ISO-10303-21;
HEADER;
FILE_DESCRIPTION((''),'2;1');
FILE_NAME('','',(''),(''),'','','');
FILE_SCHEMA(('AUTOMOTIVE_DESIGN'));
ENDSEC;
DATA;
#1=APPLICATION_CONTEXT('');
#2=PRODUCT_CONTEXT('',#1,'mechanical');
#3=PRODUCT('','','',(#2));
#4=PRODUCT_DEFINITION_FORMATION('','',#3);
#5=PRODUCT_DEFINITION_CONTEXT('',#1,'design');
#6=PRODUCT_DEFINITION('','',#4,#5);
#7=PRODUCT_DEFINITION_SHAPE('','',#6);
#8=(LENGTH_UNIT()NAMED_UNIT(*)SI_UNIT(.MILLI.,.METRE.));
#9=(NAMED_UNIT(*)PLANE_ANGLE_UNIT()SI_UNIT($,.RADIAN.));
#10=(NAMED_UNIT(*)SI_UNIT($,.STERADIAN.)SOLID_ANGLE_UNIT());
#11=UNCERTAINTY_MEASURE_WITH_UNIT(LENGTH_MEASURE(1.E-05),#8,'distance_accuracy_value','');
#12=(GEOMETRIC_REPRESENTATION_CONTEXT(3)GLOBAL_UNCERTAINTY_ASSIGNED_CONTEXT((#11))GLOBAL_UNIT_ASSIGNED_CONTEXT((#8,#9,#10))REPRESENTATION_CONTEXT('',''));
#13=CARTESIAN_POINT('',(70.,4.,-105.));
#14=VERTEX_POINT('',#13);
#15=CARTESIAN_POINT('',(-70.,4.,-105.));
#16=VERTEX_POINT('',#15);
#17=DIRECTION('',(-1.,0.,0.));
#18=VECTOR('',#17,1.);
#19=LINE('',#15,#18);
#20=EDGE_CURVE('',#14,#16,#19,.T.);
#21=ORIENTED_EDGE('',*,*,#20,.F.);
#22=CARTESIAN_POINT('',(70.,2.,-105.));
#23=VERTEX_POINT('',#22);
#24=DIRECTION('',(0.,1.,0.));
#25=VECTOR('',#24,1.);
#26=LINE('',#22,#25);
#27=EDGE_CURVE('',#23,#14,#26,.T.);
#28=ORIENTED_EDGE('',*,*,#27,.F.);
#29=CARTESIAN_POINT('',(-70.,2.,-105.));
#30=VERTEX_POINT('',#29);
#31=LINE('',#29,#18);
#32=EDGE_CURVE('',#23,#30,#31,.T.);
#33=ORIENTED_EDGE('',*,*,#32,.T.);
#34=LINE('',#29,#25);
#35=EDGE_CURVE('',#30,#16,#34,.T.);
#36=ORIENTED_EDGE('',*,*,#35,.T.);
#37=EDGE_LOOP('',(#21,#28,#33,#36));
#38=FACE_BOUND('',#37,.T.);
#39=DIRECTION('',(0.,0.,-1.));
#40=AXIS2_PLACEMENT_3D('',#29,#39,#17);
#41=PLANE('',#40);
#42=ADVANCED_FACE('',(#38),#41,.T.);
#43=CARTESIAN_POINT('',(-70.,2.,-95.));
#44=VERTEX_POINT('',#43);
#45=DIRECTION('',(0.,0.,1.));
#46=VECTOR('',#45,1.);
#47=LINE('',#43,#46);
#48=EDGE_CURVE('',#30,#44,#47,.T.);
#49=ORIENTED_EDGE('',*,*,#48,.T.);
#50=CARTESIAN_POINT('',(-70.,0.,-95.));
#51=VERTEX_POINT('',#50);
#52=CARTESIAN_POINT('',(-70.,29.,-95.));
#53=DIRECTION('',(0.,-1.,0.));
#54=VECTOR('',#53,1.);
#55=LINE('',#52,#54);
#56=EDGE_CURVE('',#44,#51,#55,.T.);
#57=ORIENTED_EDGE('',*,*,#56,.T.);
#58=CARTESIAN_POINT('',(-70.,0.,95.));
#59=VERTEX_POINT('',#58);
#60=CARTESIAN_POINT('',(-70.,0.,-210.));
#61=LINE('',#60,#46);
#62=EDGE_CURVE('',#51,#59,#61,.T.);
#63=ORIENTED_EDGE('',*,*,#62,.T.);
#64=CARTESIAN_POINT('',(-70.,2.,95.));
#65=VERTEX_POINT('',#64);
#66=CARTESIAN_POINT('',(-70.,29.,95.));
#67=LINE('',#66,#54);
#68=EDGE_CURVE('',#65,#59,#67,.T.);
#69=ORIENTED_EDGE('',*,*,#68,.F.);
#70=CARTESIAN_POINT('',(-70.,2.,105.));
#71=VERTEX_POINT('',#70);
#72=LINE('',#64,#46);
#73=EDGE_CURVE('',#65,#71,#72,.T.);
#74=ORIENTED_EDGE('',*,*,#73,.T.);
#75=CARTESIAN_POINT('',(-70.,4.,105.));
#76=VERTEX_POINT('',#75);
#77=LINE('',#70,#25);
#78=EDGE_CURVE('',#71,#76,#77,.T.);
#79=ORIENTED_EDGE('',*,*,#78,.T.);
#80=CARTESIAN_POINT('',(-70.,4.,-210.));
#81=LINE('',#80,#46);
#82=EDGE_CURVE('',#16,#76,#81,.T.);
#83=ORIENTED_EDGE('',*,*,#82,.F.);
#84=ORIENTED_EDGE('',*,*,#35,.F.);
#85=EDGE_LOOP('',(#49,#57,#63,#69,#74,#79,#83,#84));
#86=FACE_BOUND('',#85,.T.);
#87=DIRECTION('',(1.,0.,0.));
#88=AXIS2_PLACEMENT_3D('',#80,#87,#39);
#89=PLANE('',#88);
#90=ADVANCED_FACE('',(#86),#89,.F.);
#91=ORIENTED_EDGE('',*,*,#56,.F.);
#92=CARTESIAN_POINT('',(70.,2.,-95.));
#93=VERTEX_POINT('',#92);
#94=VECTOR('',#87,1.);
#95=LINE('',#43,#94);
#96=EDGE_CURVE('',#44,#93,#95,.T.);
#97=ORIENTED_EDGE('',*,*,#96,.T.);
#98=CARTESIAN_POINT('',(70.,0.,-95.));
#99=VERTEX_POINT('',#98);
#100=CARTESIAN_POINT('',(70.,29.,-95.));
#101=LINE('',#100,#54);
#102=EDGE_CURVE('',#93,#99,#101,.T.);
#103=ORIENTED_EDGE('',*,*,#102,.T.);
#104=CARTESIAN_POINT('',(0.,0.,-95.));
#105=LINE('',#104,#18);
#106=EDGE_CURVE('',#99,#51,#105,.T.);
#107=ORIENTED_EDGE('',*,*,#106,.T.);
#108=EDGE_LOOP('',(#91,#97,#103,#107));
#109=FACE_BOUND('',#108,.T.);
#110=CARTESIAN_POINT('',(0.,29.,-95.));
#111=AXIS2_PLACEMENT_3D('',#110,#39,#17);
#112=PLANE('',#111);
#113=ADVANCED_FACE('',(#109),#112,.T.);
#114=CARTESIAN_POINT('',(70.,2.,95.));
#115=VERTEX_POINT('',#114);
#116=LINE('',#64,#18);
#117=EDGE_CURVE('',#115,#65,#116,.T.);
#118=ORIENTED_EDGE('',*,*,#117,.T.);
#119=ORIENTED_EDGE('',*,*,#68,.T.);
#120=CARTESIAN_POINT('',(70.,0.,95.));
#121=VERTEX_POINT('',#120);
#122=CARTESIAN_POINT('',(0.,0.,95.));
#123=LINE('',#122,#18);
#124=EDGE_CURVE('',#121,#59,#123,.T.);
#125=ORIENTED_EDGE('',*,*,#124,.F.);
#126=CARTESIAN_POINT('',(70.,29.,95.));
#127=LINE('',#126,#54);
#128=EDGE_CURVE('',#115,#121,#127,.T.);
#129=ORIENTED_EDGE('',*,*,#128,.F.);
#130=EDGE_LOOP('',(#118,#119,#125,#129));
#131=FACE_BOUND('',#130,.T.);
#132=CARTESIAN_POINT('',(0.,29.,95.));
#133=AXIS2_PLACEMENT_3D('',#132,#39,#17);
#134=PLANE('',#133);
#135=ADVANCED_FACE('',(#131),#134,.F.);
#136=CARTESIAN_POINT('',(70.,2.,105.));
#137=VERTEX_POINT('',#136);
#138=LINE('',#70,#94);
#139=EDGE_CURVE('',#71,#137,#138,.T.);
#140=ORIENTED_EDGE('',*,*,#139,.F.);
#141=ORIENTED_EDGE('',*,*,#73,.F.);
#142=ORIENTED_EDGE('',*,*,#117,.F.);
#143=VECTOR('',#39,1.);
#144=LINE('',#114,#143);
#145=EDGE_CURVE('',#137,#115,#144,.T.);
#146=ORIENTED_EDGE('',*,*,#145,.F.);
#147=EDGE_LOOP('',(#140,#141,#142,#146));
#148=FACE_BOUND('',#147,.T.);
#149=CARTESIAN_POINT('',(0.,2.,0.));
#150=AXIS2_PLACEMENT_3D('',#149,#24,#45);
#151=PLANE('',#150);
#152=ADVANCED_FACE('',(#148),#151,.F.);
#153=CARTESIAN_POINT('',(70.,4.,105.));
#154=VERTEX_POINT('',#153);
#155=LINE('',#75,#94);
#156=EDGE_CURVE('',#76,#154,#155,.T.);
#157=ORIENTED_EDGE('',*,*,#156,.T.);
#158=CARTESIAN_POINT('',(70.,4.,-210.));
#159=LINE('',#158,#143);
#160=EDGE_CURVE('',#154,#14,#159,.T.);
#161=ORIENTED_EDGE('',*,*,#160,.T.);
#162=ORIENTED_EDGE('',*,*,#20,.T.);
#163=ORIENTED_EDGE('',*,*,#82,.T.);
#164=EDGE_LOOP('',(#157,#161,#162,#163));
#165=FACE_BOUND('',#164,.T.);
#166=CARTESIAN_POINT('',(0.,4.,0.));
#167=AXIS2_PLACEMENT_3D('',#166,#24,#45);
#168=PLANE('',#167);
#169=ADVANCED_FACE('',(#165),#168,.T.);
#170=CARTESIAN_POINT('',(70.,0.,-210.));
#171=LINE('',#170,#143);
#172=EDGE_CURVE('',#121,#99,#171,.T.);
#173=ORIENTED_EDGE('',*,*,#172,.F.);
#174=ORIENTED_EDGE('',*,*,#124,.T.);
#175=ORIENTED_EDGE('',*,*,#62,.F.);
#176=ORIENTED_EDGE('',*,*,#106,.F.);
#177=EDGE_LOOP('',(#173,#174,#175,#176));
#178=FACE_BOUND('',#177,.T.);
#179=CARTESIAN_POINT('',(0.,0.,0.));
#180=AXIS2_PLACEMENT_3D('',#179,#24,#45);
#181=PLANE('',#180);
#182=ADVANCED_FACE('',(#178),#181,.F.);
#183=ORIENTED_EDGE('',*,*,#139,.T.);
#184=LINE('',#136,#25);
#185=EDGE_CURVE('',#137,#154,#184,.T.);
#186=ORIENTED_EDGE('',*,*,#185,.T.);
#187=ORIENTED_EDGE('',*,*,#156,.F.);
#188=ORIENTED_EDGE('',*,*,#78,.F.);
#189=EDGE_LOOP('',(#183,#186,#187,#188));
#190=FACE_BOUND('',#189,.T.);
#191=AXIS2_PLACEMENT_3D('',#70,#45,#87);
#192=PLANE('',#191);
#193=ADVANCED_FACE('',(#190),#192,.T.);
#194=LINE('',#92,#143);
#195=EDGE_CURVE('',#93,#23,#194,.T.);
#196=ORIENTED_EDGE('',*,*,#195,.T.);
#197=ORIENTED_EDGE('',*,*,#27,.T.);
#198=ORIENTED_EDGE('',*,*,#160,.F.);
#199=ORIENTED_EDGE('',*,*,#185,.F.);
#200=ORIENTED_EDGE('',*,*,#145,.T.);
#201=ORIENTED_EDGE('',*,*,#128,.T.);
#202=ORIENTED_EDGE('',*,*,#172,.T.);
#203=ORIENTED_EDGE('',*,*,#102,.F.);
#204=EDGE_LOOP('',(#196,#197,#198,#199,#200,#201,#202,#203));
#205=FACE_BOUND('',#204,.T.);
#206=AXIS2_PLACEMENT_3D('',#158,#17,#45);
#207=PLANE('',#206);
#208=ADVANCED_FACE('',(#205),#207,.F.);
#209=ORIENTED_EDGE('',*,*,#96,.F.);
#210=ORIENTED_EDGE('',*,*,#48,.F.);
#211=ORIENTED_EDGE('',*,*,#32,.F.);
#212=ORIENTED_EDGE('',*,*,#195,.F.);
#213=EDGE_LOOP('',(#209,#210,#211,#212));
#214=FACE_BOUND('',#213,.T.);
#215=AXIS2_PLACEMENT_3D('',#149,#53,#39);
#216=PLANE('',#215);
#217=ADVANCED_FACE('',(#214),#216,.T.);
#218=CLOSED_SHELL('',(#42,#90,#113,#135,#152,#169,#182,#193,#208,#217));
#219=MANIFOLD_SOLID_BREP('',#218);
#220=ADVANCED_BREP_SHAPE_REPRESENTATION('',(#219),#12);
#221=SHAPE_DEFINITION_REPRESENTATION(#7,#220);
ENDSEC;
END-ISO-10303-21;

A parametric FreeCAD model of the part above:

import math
import FreeCAD as App
import Part
import Sketcher
from FreeCAD import Vector


def add_polygon(sketch, points):
    """Adds a closed chain of lines whose ends are joined by coincident constraints."""
    first, n = sketch.GeometryCount, len(points)
    for a, b in zip(points, points[1:] + points[:1]):
        sketch.addGeometry(Part.LineSegment(App.Vector(*a, 0), App.Vector(*b, 0)), False)
    for i in range(n):
        sketch.addConstraint(Sketcher.Constraint("Coincident", first + i, 2, first + (i + 1) % n, 1))

doc = App.newDocument("Part")
params = doc.addObject("Spreadsheet::Sheet", "Params")
for row, (alias, value) in enumerate([
    ("sketch1_width", "140 mm"),
    ("sketch1_height", "420 mm"),
    ("pad1_length", "4 mm"),
    ("sketch2_radius", "43.5 mm"),
    ("sketch2_radius2", "37.5 mm"),
    ("sketch2_height", "20 mm"),
    ("pad2_length", "25 mm"),
    ("sketch3_width", "10.25 mm"),
    ("sketch3_height", "80.25 mm"),
    ("pocket1_length", "25.4 mm"),
    ("sketch4_width", "130 mm"),
    ("sketch4_height", "10 mm"),
    ("pocket2_length", "2.45 mm"),
    ("sketch5_width", "140 mm"),
    ("sketch5_height", "115 mm"),
    ("sketch5_width2", "10.25 mm"),
    ("sketch5_height2", "80.25 mm"),
    ("sketch6_width", "140 mm"),
    ("sketch6_height", "10 mm"),
    ("pad3_length", "2 mm"),
], start=1):
    params.set(f"A{row}", alias)
    params.set(f"B{row}", "=" + value)
    params.setAlias(f"B{row}", alias)

body = doc.addObject("PartDesign::Body", "Body")

# Sketch on XZ plane
sketch1 = doc.addObject("Sketcher::SketchObject", "Sketch")
body.addObject(sketch1)
sketch1.AttachmentSupport = (doc.XZ_Plane, [""])
sketch1.MapMode = "FlatFace"
add_polygon(sketch1, [(-70, -210), (-70, 210), (70, 210), (70, -210)])  # lines 0-3
sketch1.addConstraint([
    Sketcher.Constraint("Vertical", 0),
    Sketcher.Constraint("Horizontal", 1),
    Sketcher.Constraint("Vertical", 2),
    Sketcher.Constraint("Horizontal", 3),
    Sketcher.Constraint("Symmetric", 0, 2, 2, 2, -1, 1),
    Sketcher.Constraint("DistanceX", 1, 1, 1, 2, 140.0),
    Sketcher.Constraint("DistanceY", 0, 1, 0, 2, 420.0),
])
sketch1.setExpression("Constraints[9]", "Params.sketch1_width")
sketch1.setExpression("Constraints[10]", "Params.sketch1_height")
pad1 = doc.addObject("PartDesign::Pad", "Pad")
body.addObject(pad1)
pad1.Profile = sketch1
pad1.setExpression("Length", "Params.pad1_length")
pad1.Reversed = True

# Sketch on XZ plane
sketch2 = doc.addObject("Sketcher::SketchObject", "Sketch001")
body.addObject(sketch2)
sketch2.AttachmentSupport = (doc.XZ_Plane, [""])
sketch2.MapMode = "FlatFace"
sketch2.AttachmentOffset = App.Placement(Vector(0, 0, -4), App.Rotation())
sketch2.addGeometry([
    Part.LineSegment(Vector(-38, 165, 0), Vector(-38, 145, 0)),  # 0
    Part.LineSegment(Vector(-38, 145, 0), Vector(-44, 145, 0)),  # 1
    Part.LineSegment(Vector(-44, 145, 0), Vector(-44, 165, 0)),  # 2
    Part.ArcOfCircle(Part.Circle(Vector(0, 165, 0), Vector(0, 0, 1), 44), math.radians(0), math.radians(180)),  # 3
    Part.LineSegment(Vector(44, 165, 0), Vector(44, 145, 0)),  # 4
    Part.LineSegment(Vector(44, 145, 0), Vector(38, 145, 0)),  # 5
    Part.LineSegment(Vector(38, 145, 0), Vector(38, 165, 0)),  # 6
    Part.ArcOfCircle(Part.Circle(Vector(0, 165, 0), Vector(0, 0, 1), 38), math.radians(0), math.radians(180)),  # 7
], False)
sketch2.addConstraint([
    Sketcher.Constraint("Coincident", 0, 2, 1, 1),
    Sketcher.Constraint("Coincident", 1, 2, 2, 1),
    Sketcher.Constraint("Tangent", 2, 2, 3, 2),
    Sketcher.Constraint("Tangent", 3, 1, 4, 1),
    Sketcher.Constraint("Coincident", 4, 2, 5, 1),
    Sketcher.Constraint("Coincident", 5, 2, 6, 1),
    Sketcher.Constraint("Tangent", 6, 2, 7, 1),
    Sketcher.Constraint("Tangent", 7, 2, 0, 1),
    Sketcher.Constraint("Vertical", 0),
    Sketcher.Constraint("Horizontal", 1),
    Sketcher.Constraint("Vertical", 2),
    Sketcher.Constraint("Vertical", 4),
    Sketcher.Constraint("Horizontal", 5),
    Sketcher.Constraint("Vertical", 6),
    Sketcher.Constraint("Coincident", 7, 3, 3, 3),
    Sketcher.Constraint("Symmetric", 1, 2, 4, 2, -2),
    Sketcher.Constraint("Radius", 3, 43.5),
    Sketcher.Constraint("Radius", 7, 37.5),
    Sketcher.Constraint("DistanceY", 0, 2, 0, 1, 20.0),
    Sketcher.Constraint("DistanceY", -1, 1, 3, 3, 165.0),
])
sketch2.setExpression("Constraints[16]", "Params.sketch2_radius")
sketch2.setExpression("Constraints[17]", "Params.sketch2_radius2")
sketch2.setExpression("Constraints[18]", "Params.sketch2_height")
pad2 = doc.addObject("PartDesign::Pad", "Pad001")
body.addObject(pad2)
pad2.Profile = sketch2
pad2.setExpression("Length", "Params.pad2_length")
pad2.Reversed = True

# Sketch on XZ plane
sketch3 = doc.addObject("Sketcher::SketchObject", "Sketch002")
body.addObject(sketch3)
sketch3.AttachmentSupport = (doc.XZ_Plane, [""])
sketch3.MapMode = "FlatFace"
sketch3.AttachmentOffset = App.Placement(Vector(0, 0, -4), App.Rotation())
add_polygon(sketch3, [(-65, -180), (-65, -100), (-55, -100), (-55, -180)])  # lines 0-3
add_polygon(sketch3, [(55, -180), (55, -100), (65, -100), (65, -180)])  # lines 4-7
sketch3.addConstraint([
    Sketcher.Constraint("Vertical", 0),
    Sketcher.Constraint("Horizontal", 1),
    Sketcher.Constraint("Vertical", 2),
    Sketcher.Constraint("Horizontal", 3),
    Sketcher.Constraint("Vertical", 4),
    Sketcher.Constraint("Horizontal", 5),
    Sketcher.Constraint("Vertical", 6),
    Sketcher.Constraint("Horizontal", 7),
    Sketcher.Constraint("Symmetric", 1, 2, 4, 2, -2),
    Sketcher.Constraint("Symmetric", 3, 2, 6, 2, -2),
    Sketcher.Constraint("DistanceX", 0, 2, -1, 1, 65.0),
    Sketcher.Constraint("DistanceY", 2, 2, -1, 1, 180.0),
    Sketcher.Constraint("DistanceX", 1, 1, 1, 2, 10.25),
    Sketcher.Constraint("DistanceY", 0, 1, 0, 2, 80.25),
])
sketch3.setExpression("Constraints[20]", "Params.sketch3_width")
sketch3.setExpression("Constraints[21]", "Params.sketch3_height")
pocket1 = doc.addObject("PartDesign::Pocket", "Pocket")
body.addObject(pocket1)
pocket1.Profile = sketch3
pocket1.setExpression("Length", "Params.pocket1_length")
pocket1.Reversed = True

# Sketch on XZ plane
sketch4 = doc.addObject("Sketcher::SketchObject", "Sketch003")
body.addObject(sketch4)
sketch4.AttachmentSupport = (doc.XZ_Plane, [""])
sketch4.MapMode = "FlatFace"
sketch4.AttachmentOffset = App.Placement(Vector(0, 0, -4), App.Rotation())
add_polygon(sketch4, [(-65, -205), (-65, -195), (65, -195), (65, -205)])  # lines 0-3
sketch4.addConstraint([
    Sketcher.Constraint("Vertical", 0),
    Sketcher.Constraint("Horizontal", 1),
    Sketcher.Constraint("Vertical", 2),
    Sketcher.Constraint("Horizontal", 3),
    Sketcher.Constraint("DistanceX", 1, 1, 1, 2, 130.0),
    Sketcher.Constraint("DistanceY", 0, 1, 0, 2, 10.0),
    Sketcher.Constraint("DistanceX", 0, 2, -1, 1, 65.0),
    Sketcher.Constraint("DistanceY", 0, 2, -1, 1, 195.0),
])
sketch4.setExpression("Constraints[8]", "Params.sketch4_width")
sketch4.setExpression("Constraints[9]", "Params.sketch4_height")
pocket2 = doc.addObject("PartDesign::Pocket", "Pocket001")
body.addObject(pocket2)
pocket2.Profile = sketch4
pocket2.setExpression("Length", "Params.pocket2_length")
pocket2.Reversed = True

# Sketch on XZ plane
sketch5 = doc.addObject("Sketcher::SketchObject", "Sketch004")
body.addObject(sketch5)
sketch5.AttachmentSupport = (doc.XZ_Plane, [""])
sketch5.MapMode = "FlatFace"
add_polygon(sketch5, [(-70, 210), (-70, 95), (70, 95), (70, 210)])  # lines 0-3
add_polygon(sketch5, [(-70, -95), (-70, -210), (70, -210), (70, -95)])  # lines 4-7
add_polygon(sketch5, [(-55, -180), (-65, -180), (-65, -100), (-55, -100)])  # lines 8-11
add_polygon(sketch5, [(65, -180), (55, -180), (55, -100), (65, -100)])  # lines 12-15
sketch5.addConstraint([
    Sketcher.Constraint("Vertical", 0),
    Sketcher.Constraint("Horizontal", 1),
    Sketcher.Constraint("Vertical", 2),
    Sketcher.Constraint("Horizontal", 3),
    Sketcher.Constraint("Vertical", 4),
    Sketcher.Constraint("Horizontal", 5),
    Sketcher.Constraint("Vertical", 6),
    Sketcher.Constraint("Horizontal", 7),
    Sketcher.Constraint("Horizontal", 8),
    Sketcher.Constraint("Vertical", 9),
    Sketcher.Constraint("Horizontal", 10),
    Sketcher.Constraint("Vertical", 11),
    Sketcher.Constraint("Horizontal", 12),
    Sketcher.Constraint("Vertical", 13),
    Sketcher.Constraint("Horizontal", 14),
    Sketcher.Constraint("Vertical", 15),
    Sketcher.Constraint("Symmetric", 2, 2, 4, 2, -1, 1),
    Sketcher.Constraint("Symmetric", 0, 2, 6, 2, -1, 1),
    Sketcher.Constraint("Symmetric", 11, 2, 12, 2, -2),
    Sketcher.Constraint("Symmetric", 9, 2, 14, 2, -2),
    Sketcher.Constraint("Vertical", 3, 2, 4, 2),
    Sketcher.Constraint("DistanceX", 1, 1, 1, 2, 140.0),
    Sketcher.Constraint("DistanceY", 0, 2, 0, 1, 115.0),
    Sketcher.Constraint("DistanceY", -1, 1, 0, 2, 95.0),
    Sketcher.Constraint("DistanceX", 8, 2, -1, 1, 65.0),
    Sketcher.Constraint("DistanceY", 8, 2, -1, 1, 180.0),
    Sketcher.Constraint("DistanceX", 8, 2, 8, 1, 10.25),
    Sketcher.Constraint("DistanceY", 9, 1, 9, 2, 80.25),
])
sketch5.setExpression("Constraints[37]", "Params.sketch5_width")
sketch5.setExpression("Constraints[38]", "Params.sketch5_height")
sketch5.setExpression("Constraints[42]", "Params.sketch5_width2")
sketch5.setExpression("Constraints[43]", "Params.sketch5_height2")
pocket3 = doc.addObject("PartDesign::Pocket", "Pocket002")
body.addObject(pocket3)
pocket3.Profile = sketch5
pocket3.Type = "ThroughAll"
pocket3.Midplane = True

# Sketch on XZ plane
sketch6 = doc.addObject("Sketcher::SketchObject", "Sketch005")
body.addObject(sketch6)
sketch6.AttachmentSupport = (doc.XZ_Plane, [""])
sketch6.MapMode = "FlatFace"
sketch6.AttachmentOffset = App.Placement(Vector(0, 0, -4), App.Rotation())
add_polygon(sketch6, [(-70, -105), (-70, -95), (70, -95), (70, -105)])  # lines 0-3
add_polygon(sketch6, [(-70, 95), (-70, 105), (70, 105), (70, 95)])  # lines 4-7
sketch6.addConstraint([
    Sketcher.Constraint("Vertical", 0),
    Sketcher.Constraint("Horizontal", 1),
    Sketcher.Constraint("Vertical", 2),
    Sketcher.Constraint("Horizontal", 3),
    Sketcher.Constraint("Vertical", 4),
    Sketcher.Constraint("Horizontal", 5),
    Sketcher.Constraint("Vertical", 6),
    Sketcher.Constraint("Horizontal", 7),
    Sketcher.Constraint("Symmetric", 2, 2, 4, 2, -1, 1),
    Sketcher.Constraint("Symmetric", 0, 2, 6, 2, -1, 1),
    Sketcher.Constraint("Vertical", 3, 2, 4, 2),
    Sketcher.Constraint("DistanceX", 1, 1, 1, 2, 140.0),
    Sketcher.Constraint("DistanceY", 0, 1, 0, 2, 10.0),
    Sketcher.Constraint("DistanceY", 0, 2, -1, 1, 95.0),
])
sketch6.setExpression("Constraints[19]", "Params.sketch6_width")
sketch6.setExpression("Constraints[20]", "Params.sketch6_height")
pad3 = doc.addObject("PartDesign::Pad", "Pad002")
body.addObject(pad3)
pad3.Profile = sketch6
pad3.setExpression("Length", "Params.pad3_length")

doc.recompute()
